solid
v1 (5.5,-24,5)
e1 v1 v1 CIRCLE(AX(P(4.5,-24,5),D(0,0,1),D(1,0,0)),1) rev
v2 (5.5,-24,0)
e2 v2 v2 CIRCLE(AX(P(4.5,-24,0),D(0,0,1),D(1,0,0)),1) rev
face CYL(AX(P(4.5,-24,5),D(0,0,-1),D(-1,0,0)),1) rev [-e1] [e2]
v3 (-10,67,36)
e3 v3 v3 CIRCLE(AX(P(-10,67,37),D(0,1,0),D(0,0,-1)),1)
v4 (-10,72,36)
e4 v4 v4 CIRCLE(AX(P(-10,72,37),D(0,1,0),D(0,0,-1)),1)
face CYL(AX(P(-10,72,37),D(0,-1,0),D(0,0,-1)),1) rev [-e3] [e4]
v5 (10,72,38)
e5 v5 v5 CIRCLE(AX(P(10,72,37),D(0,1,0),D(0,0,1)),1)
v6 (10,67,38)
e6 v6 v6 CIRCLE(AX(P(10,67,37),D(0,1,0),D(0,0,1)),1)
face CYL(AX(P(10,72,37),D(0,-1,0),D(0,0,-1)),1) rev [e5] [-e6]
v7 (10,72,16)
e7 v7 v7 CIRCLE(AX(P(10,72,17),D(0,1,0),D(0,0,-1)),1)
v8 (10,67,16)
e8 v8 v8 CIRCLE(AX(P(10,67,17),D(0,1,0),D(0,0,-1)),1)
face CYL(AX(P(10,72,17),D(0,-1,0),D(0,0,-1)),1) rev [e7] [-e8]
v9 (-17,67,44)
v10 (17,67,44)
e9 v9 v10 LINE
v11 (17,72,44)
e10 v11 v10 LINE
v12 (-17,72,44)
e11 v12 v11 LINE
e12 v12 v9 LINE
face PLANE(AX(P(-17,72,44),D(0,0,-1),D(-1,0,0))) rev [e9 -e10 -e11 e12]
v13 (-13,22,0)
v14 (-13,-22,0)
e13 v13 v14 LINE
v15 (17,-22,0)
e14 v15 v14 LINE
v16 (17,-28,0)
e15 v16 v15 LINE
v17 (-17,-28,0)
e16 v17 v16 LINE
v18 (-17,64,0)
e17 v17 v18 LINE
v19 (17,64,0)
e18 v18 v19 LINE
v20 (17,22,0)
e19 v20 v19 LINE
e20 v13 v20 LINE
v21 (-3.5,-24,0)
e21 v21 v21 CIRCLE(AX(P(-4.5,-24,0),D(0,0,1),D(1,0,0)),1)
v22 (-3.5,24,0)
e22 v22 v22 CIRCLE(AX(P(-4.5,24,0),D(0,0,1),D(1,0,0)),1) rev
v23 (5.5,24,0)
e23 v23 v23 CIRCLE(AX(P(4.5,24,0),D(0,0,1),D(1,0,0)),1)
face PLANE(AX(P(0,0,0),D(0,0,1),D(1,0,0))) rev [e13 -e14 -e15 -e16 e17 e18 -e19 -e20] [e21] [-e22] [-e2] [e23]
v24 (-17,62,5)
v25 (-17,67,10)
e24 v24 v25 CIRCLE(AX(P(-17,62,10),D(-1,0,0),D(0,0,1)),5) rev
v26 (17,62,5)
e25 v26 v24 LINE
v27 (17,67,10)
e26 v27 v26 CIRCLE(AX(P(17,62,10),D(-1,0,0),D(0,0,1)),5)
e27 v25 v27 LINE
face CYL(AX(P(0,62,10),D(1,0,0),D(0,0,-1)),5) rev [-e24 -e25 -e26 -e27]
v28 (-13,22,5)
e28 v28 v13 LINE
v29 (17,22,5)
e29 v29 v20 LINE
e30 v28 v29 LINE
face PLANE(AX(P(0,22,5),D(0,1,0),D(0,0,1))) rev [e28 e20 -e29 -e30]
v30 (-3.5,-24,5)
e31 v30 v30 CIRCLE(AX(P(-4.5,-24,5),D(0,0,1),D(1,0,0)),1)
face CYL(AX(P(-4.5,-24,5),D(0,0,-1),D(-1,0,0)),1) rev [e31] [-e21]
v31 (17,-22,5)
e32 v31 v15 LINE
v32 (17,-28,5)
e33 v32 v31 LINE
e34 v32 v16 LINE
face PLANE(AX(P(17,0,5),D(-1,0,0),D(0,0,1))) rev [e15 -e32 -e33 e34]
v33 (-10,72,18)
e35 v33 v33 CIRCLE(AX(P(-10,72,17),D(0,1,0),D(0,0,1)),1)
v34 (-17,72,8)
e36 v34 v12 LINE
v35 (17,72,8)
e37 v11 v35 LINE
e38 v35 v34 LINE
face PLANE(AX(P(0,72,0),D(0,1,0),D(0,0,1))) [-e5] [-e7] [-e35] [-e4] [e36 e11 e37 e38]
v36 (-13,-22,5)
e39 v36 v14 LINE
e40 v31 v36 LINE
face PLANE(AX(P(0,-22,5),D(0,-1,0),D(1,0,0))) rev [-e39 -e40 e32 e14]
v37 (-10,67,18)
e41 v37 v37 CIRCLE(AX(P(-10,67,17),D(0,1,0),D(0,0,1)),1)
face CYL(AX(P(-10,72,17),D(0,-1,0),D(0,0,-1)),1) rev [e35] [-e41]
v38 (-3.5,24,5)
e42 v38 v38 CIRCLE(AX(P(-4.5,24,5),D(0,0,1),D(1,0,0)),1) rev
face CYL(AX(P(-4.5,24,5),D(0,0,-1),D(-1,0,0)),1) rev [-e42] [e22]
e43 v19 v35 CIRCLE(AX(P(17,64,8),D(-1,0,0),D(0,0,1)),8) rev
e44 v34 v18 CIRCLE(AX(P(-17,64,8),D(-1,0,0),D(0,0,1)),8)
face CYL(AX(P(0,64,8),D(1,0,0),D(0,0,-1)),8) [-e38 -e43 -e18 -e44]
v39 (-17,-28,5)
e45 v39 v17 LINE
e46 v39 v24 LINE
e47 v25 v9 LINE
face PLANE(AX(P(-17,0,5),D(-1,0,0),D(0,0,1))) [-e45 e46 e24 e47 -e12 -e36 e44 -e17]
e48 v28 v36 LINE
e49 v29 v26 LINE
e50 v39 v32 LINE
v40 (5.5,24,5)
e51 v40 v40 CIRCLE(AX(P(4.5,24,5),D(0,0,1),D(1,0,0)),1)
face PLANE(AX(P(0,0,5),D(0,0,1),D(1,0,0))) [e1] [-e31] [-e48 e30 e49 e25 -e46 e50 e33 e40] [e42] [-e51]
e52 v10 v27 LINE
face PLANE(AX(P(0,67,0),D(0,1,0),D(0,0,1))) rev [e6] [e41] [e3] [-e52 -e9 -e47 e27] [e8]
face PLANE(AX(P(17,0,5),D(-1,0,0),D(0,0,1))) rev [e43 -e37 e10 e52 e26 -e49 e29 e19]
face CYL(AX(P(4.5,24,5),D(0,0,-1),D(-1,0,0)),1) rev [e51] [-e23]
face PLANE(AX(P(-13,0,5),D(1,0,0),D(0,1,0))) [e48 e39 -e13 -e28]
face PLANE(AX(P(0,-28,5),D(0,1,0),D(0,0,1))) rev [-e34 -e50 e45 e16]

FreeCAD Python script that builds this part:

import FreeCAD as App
import Part
import Sketcher

V = App.Vector
Q = App.Units.Quantity


def edges_at(feature, points):
    """Names of the edges that pass closest to the given points."""
    edges = feature.Shape.Edges
    near = lambda p: min(range(len(edges)), key=lambda i: edges[i].distToShape(Part.Vertex(*p))[0])
    return sorted({f"Edge{near(p) + 1}" for p in points})

doc = App.newDocument("Part")
params = doc.addObject("Spreadsheet::Sheet", "Params")
for row, (alias, value) in enumerate([
    ("sketch1_diameter", "2 mm"),
    ("sketch1_width", "34 mm"),
    ("sketch1_width2", "30 mm"),
    ("sketch1_height", "95 mm"),
    ("sketch1_height2", "6 mm"),
    ("pad1_length", "5 mm"),
    ("sketch2_diameter", "2 mm"),
    ("sketch2_width", "34 mm"),
    ("sketch2_height", "44 mm"),
    ("pad2_length", "5 mm"),
    ("fillet_radius", "8 mm"),
    ("fillet2_radius", "5 mm"),
], start=1):
    params.set(f"A{row}", alias)
    params.set(f"B{row}", "=" + value)
    params.setAlias(f"B{row}", alias)

body = doc.addObject("PartDesign::Body", "Body")

# Sketch on XY plane
sketch1 = body.newObject("Sketcher::SketchObject", "Sketch")
sketch1.AttachmentSupport = (doc.getObject("XY_Plane"), [""])
sketch1.MapMode = "FlatFace"
sketch1.addGeometry(Part.LineSegment(V(-17, 67, 0), V(-17, -28, 0)), False)
sketch1.addGeometry(Part.LineSegment(V(-17, -28, 0), V(17, -28, 0)), False)
sketch1.addGeometry(Part.LineSegment(V(17, -28, 0), V(17, -22, 0)), False)
sketch1.addGeometry(Part.LineSegment(V(17, -22, 0), V(-13, -22, 0)), False)
sketch1.addGeometry(Part.LineSegment(V(-13, -22, 0), V(-13, 22, 0)), False)
sketch1.addGeometry(Part.LineSegment(V(-13, 22, 0), V(17, 22, 0)), False)
sketch1.addGeometry(Part.LineSegment(V(17, 22, 0), V(17, 67, 0)), False)
sketch1.addGeometry(Part.LineSegment(V(17, 67, 0), V(-17, 67, 0)), False)
sketch1.addGeometry(Part.Circle(V(-4.5, -24, 0), V(0, 0, 1), 1), False)
sketch1.addGeometry(Part.Circle(V(4.5, -24, 0), V(0, 0, 1), 1), False)
sketch1.addGeometry(Part.Circle(V(-4.5, 24, 0), V(0, 0, 1), 1), False)
sketch1.addGeometry(Part.Circle(V(4.5, 24, 0), V(0, 0, 1), 1), False)
sketch1.addConstraint(Sketcher.Constraint("Coincident", 0, 2, 1, 1))
sketch1.addConstraint(Sketcher.Constraint("Coincident", 1, 2, 2, 1))
sketch1.addConstraint(Sketcher.Constraint("Coincident", 2, 2, 3, 1))
sketch1.addConstraint(Sketcher.Constraint("Coincident", 3, 2, 4, 1))
sketch1.addConstraint(Sketcher.Constraint("Coincident", 4, 2, 5, 1))
sketch1.addConstraint(Sketcher.Constraint("Coincident", 5, 2, 6, 1))
sketch1.addConstraint(Sketcher.Constraint("Coincident", 6, 2, 7, 1))
sketch1.addConstraint(Sketcher.Constraint("Coincident", 7, 2, 0, 1))
sketch1.addConstraint(Sketcher.Constraint("Vertical", 0))
sketch1.addConstraint(Sketcher.Constraint("Horizontal", 1))
sketch1.addConstraint(Sketcher.Constraint("Vertical", 2))
sketch1.addConstraint(Sketcher.Constraint("Horizontal", 3))
sketch1.addConstraint(Sketcher.Constraint("Vertical", 4))
sketch1.addConstraint(Sketcher.Constraint("Horizontal", 5))
sketch1.addConstraint(Sketcher.Constraint("Vertical", 6))
sketch1.addConstraint(Sketcher.Constraint("Horizontal", 7))
sketch1.addConstraint(Sketcher.Constraint("Equal", 8, 9))
sketch1.addConstraint(Sketcher.Constraint("Equal", 9, 10))
sketch1.addConstraint(Sketcher.Constraint("Equal", 10, 11))
sketch1.addConstraint(Sketcher.Constraint("Symmetric", 9, 3, 10, 3, -1, 1))
sketch1.addConstraint(Sketcher.Constraint("Symmetric", 8, 3, 11, 3, -1, 1))
sketch1.addConstraint(Sketcher.Constraint("Symmetric", 8, 3, 9, 3, -2))
sketch1.addConstraint(Sketcher.Constraint("Symmetric", 2, 2, 5, 2, -1))
sketch1.addConstraint(Sketcher.Constraint("Diameter", 8, Q("2 mm")))
sketch1.addConstraint(Sketcher.Constraint("DistanceX", 1, 1, 1, 2, Q("34 mm")))
sketch1.addConstraint(Sketcher.Constraint("DistanceX", 3, 2, 3, 1, Q("30 mm")))
sketch1.addConstraint(Sketcher.Constraint("DistanceY", 0, 2, 0, 1, Q("95 mm")))
sketch1.addConstraint(Sketcher.Constraint("DistanceY", 2, 1, 2, 2, Q("6 mm")))
sketch1.addConstraint(Sketcher.Constraint("DistanceY", 4, 1, 4, 2, Q("44 mm")))
sketch1.addConstraint(Sketcher.Constraint("DistanceY", 8, 3, -1, 1, Q("24 mm")))
sketch1.addConstraint(Sketcher.Constraint("DistanceX", 0, 2, -1, 1, Q("17 mm")))
sketch1.addConstraint(Sketcher.Constraint("DistanceX", 8, 3, 9, 3, Q("9 mm")))
sketch1.setExpression("Constraints[23]", "Params.sketch1_diameter")
sketch1.setExpression("Constraints[24]", "Params.sketch1_width")
sketch1.setExpression("Constraints[25]", "Params.sketch1_width2")
sketch1.setExpression("Constraints[26]", "Params.sketch1_height")
sketch1.setExpression("Constraints[27]", "Params.sketch1_height2")
pad1 = body.newObject("PartDesign::Pad", "Pad")
pad1.Profile = sketch1
pad1.setExpression("Length", "Params.pad1_length")

# Sketch on XZ plane
sketch2 = body.newObject("Sketcher::SketchObject", "Sketch001")
sketch2.AttachmentSupport = (doc.getObject("XZ_Plane"), [""])
sketch2.MapMode = "FlatFace"
sketch2.AttachmentOffset = App.Placement(V(0, 0, -67), App.Rotation())
sketch2.addGeometry(Part.LineSegment(V(-17, 0, 0), V(-17, 44, 0)), False)
sketch2.addGeometry(Part.LineSegment(V(-17, 44, 0), V(17, 44, 0)), False)
sketch2.addGeometry(Part.LineSegment(V(17, 44, 0), V(17, 0, 0)), False)
sketch2.addGeometry(Part.LineSegment(V(17, 0, 0), V(-17, 0, 0)), False)
sketch2.addGeometry(Part.Circle(V(-10, 37, 0), V(0, 0, 1), 1), False)
sketch2.addGeometry(Part.Circle(V(10, 37, 0), V(0, 0, 1), 1), False)
sketch2.addGeometry(Part.Circle(V(-10, 17, 0), V(0, 0, 1), 1), False)
sketch2.addGeometry(Part.Circle(V(10, 17, 0), V(0, 0, 1), 1), False)
sketch2.addConstraint(Sketcher.Constraint("Coincident", 0, 2, 1, 1))
sketch2.addConstraint(Sketcher.Constraint("Coincident", 1, 2, 2, 1))
sketch2.addConstraint(Sketcher.Constraint("Coincident", 2, 2, 3, 1))
sketch2.addConstraint(Sketcher.Constraint("Coincident", 3, 2, 0, 1))
sketch2.addConstraint(Sketcher.Constraint("Vertical", 0))
sketch2.addConstraint(Sketcher.Constraint("Horizontal", 1))
sketch2.addConstraint(Sketcher.Constraint("Vertical", 2))
sketch2.addConstraint(Sketcher.Constraint("Horizontal", 3))
sketch2.addConstraint(Sketcher.Constraint("Equal", 4, 5))
sketch2.addConstraint(Sketcher.Constraint("Equal", 5, 6))
sketch2.addConstraint(Sketcher.Constraint("Equal", 6, 7))
sketch2.addConstraint(Sketcher.Constraint("Symmetric", 2, 2, 3, 2, -1, 1))
sketch2.addConstraint(Sketcher.Constraint("Symmetric", 4, 3, 5, 3, -2))
sketch2.addConstraint(Sketcher.Constraint("Symmetric", 6, 3, 7, 3, -2))
sketch2.addConstraint(Sketcher.Constraint("Vertical", 4, 3, 6, 3))
sketch2.addConstraint(Sketcher.Constraint("Diameter", 4, Q("2 mm")))
sketch2.addConstraint(Sketcher.Constraint("DistanceX", 1, 1, 1, 2, Q("34 mm")))
sketch2.addConstraint(Sketcher.Constraint("DistanceY", 0, 1, 0, 2, Q("44 mm")))
sketch2.addConstraint(Sketcher.Constraint("DistanceX", 4, 3, -1, 1, Q("10 mm")))
sketch2.addConstraint(Sketcher.Constraint("DistanceY", -1, 1, 4, 3, Q("37 mm")))
sketch2.addConstraint(Sketcher.Constraint("DistanceY", -1, 1, 6, 3, Q("17 mm")))
sketch2.setExpression("Constraints[15]", "Params.sketch2_diameter")
sketch2.setExpression("Constraints[16]", "Params.sketch2_width")
sketch2.setExpression("Constraints[17]", "Params.sketch2_height")
pad2 = body.newObject("PartDesign::Pad", "Pad001")
pad2.Profile = sketch2
pad2.setExpression("Length", "Params.pad2_length")
pad2.Reversed = True
doc.recompute()

fillet = body.newObject("PartDesign::Fillet", "Fillet")
fillet.Base = (pad2, edges_at(pad2, [(0, 72, 0)]))
fillet.setExpression("Radius", "Params.fillet_radius")
doc.recompute()

fillet2 = body.newObject("PartDesign::Fillet", "Fillet001")
fillet2.Base = (fillet, edges_at(fillet, [(0, 67, 5)]))
fillet2.setExpression("Radius", "Params.fillet2_radius")

doc.recompute()
